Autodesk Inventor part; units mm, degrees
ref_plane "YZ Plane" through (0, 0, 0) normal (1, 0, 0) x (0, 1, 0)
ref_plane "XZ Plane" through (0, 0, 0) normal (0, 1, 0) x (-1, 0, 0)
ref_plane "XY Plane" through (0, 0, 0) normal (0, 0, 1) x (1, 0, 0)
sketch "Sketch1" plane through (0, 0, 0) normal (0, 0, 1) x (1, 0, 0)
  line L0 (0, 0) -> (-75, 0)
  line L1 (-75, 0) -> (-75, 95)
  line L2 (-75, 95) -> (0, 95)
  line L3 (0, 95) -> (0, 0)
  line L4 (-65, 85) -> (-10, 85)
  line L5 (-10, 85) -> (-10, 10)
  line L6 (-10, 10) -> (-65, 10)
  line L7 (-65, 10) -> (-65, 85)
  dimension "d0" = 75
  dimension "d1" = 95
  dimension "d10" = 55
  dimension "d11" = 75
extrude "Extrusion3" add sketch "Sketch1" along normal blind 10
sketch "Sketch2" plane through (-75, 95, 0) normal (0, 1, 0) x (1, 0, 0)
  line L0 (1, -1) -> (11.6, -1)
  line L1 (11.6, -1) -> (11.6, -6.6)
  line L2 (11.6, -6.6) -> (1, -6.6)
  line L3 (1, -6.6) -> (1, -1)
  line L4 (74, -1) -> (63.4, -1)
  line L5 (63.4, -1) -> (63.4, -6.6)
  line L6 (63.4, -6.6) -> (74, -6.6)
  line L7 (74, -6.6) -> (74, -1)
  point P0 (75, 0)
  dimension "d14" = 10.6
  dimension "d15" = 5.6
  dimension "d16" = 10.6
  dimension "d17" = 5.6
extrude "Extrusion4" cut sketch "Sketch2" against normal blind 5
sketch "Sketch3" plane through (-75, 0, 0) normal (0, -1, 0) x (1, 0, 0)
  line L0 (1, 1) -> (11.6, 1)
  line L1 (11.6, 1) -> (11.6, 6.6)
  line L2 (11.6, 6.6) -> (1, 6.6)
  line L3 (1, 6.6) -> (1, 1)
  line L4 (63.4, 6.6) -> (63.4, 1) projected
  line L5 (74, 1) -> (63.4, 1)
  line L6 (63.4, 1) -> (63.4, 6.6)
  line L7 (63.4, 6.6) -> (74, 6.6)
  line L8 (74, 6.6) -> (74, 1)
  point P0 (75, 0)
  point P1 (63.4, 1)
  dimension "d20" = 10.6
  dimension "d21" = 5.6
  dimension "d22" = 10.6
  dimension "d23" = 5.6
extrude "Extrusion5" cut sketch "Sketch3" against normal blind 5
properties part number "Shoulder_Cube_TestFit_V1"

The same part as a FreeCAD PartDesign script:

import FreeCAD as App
import Part
import Sketcher

V = App.Vector
Q = App.Units.Quantity

doc = App.newDocument("Part")
body = doc.addObject("PartDesign::Body", "Body")

# Sketch on XY plane
sketch1 = body.newObject("Sketcher::SketchObject", "Sketch")
sketch1.AttachmentSupport = (doc.getObject("XY_Plane"), [""])
sketch1.MapMode = "FlatFace"
sketch1.addGeometry([
    Part.LineSegment(V(-75, 0, 0), V(0, 0, 0)),  # 0
    Part.LineSegment(V(0, 0, 0), V(0, 95, 0)),  # 1
    Part.LineSegment(V(0, 95, 0), V(-75, 95, 0)),  # 2
    Part.LineSegment(V(-75, 95, 0), V(-75, 0, 0)),  # 3
    Part.LineSegment(V(-65, 10, 0), V(-65, 85, 0)),  # 4
    Part.LineSegment(V(-65, 85, 0), V(-10, 85, 0)),  # 5
    Part.LineSegment(V(-10, 85, 0), V(-10, 10, 0)),  # 6
    Part.LineSegment(V(-10, 10, 0), V(-65, 10, 0)),  # 7
], False)
sketch1.addConstraint([
    Sketcher.Constraint("Coincident", 0, 2, 1, 1),
    Sketcher.Constraint("Coincident", 1, 2, 2, 1),
    Sketcher.Constraint("Coincident", 2, 2, 3, 1),
    Sketcher.Constraint("Coincident", 3, 2, 0, 1),
    Sketcher.Constraint("Coincident", 4, 2, 5, 1),
    Sketcher.Constraint("Coincident", 5, 2, 6, 1),
    Sketcher.Constraint("Coincident", 6, 2, 7, 1),
    Sketcher.Constraint("Coincident", 7, 2, 4, 1),
    Sketcher.Constraint("Horizontal", 0),
    Sketcher.Constraint("Vertical", 1),
    Sketcher.Constraint("Horizontal", 2),
    Sketcher.Constraint("Vertical", 3),
    Sketcher.Constraint("Vertical", 4),
    Sketcher.Constraint("Horizontal", 5),
    Sketcher.Constraint("Vertical", 6),
    Sketcher.Constraint("Horizontal", 7),
    Sketcher.Constraint("Coincident", 0, 2, -1, 1),
    Sketcher.Constraint("Equal", 2, 4),
    Sketcher.Constraint("DistanceX", 0, 1, 0, 2, Q("75 mm")),
    Sketcher.Constraint("DistanceX", 5, 1, 5, 2, Q("55 mm")),
    Sketcher.Constraint("DistanceY", 1, 1, 1, 2, Q("95 mm")),
    Sketcher.Constraint("DistanceX", 4, 2, -1, 1, Q("65 mm")),
    Sketcher.Constraint("DistanceY", -1, 1, 4, 2, Q("85 mm")),
])
pad1 = body.newObject("PartDesign::Pad", "Pad")
pad1.Profile = sketch1
pad1.Length = 10

# Sketch on XZ plane
sketch2 = body.newObject("Sketcher::SketchObject", "Sketch001")
sketch2.AttachmentSupport = (doc.getObject("XZ_Plane"), [""])
sketch2.MapMode = "FlatFace"
sketch2.AttachmentOffset = App.Placement(V(0, 0, -95), App.Rotation())
sketch2.addGeometry([
    Part.LineSegment(V(-63, 1, 0), V(-74, 1, 0)),  # 0
    Part.LineSegment(V(-74, 1, 0), V(-74, 7, 0)),  # 1
    Part.LineSegment(V(-74, 7, 0), V(-63, 7, 0)),  # 2
    Part.LineSegment(V(-63, 7, 0), V(-63, 1, 0)),  # 3
    Part.LineSegment(V(-1, 7, 0), V(-1, 1, 0)),  # 4
    Part.LineSegment(V(-1, 1, 0), V(-12, 1, 0)),  # 5
    Part.LineSegment(V(-12, 1, 0), V(-12, 7, 0)),  # 6
    Part.LineSegment(V(-12, 7, 0), V(-1, 7, 0)),  # 7
], False)
sketch2.addConstraint([
    Sketcher.Constraint("Coincident", 0, 2, 1, 1),
    Sketcher.Constraint("Coincident", 1, 2, 2, 1),
    Sketcher.Constraint("Coincident", 2, 2, 3, 1),
    Sketcher.Constraint("Coincident", 3, 2, 0, 1),
    Sketcher.Constraint("Coincident", 4, 2, 5, 1),
    Sketcher.Constraint("Coincident", 5, 2, 6, 1),
    Sketcher.Constraint("Coincident", 6, 2, 7, 1),
    Sketcher.Constraint("Coincident", 7, 2, 4, 1),
    Sketcher.Constraint("Horizontal", 0),
    Sketcher.Constraint("Vertical", 1),
    Sketcher.Constraint("Horizontal", 2),
    Sketcher.Constraint("Vertical", 3),
    Sketcher.Constraint("Vertical", 4),
    Sketcher.Constraint("Horizontal", 5),
    Sketcher.Constraint("Vertical", 6),
    Sketcher.Constraint("Horizontal", 7),
    Sketcher.Constraint("Horizontal", 3, 2, 4, 2),
    Sketcher.Constraint("Horizontal", 2, 2, 6, 2),
    Sketcher.Constraint("Equal", 2, 5),
    Sketcher.Constraint("DistanceX", 0, 2, 0, 1, Q("10.6 mm")),
    Sketcher.Constraint("DistanceY", 1, 1, 1, 2, Q("5.6 mm")),
    Sketcher.Constraint("DistanceX", 0, 2, -1, 1, Q("74 mm")),
    Sketcher.Constraint("DistanceY", -1, 1, 0, 2, Q("1 mm")),
    Sketcher.Constraint("DistanceX", 4, 2, -1, 1, Q("1 mm")),
])
pocket1 = body.newObject("PartDesign::Pocket", "Pocket")
pocket1.Profile = sketch2
pocket1.Length = 5
pocket1.Reversed = True

# Sketch on XZ plane
sketch3 = body.newObject("Sketcher::SketchObject", "Sketch002")
sketch3.AttachmentSupport = (doc.getObject("XZ_Plane"), [""])
sketch3.MapMode = "FlatFace"
sketch3.addGeometry([
    Part.LineSegment(V(-74, 7, 0), V(-74, 1, 0)),  # 0
    Part.LineSegment(V(-74, 1, 0), V(-63, 1, 0)),  # 1
    Part.LineSegment(V(-63, 1, 0), V(-63, 7, 0)),  # 2
    Part.LineSegment(V(-63, 7, 0), V(-74, 7, 0)),  # 3
    Part.LineSegment(V(-1, 7, 0), V(-12, 7, 0)),  # 4
    Part.LineSegment(V(-12, 7, 0), V(-12, 1, 0)),  # 5
    Part.LineSegment(V(-12, 1, 0), V(-1, 1, 0)),  # 6
    Part.LineSegment(V(-1, 1, 0), V(-1, 7, 0)),  # 7
], False)
sketch3.addConstraint([
    Sketcher.Constraint("Coincident", 0, 2, 1, 1),
    Sketcher.Constraint("Coincident", 1, 2, 2, 1),
    Sketcher.Constraint("Coincident", 2, 2, 3, 1),
    Sketcher.Constraint("Coincident", 3, 2, 0, 1),
    Sketcher.Constraint("Coincident", 4, 2, 5, 1),
    Sketcher.Constraint("Coincident", 5, 2, 6, 1),
    Sketcher.Constraint("Coincident", 6, 2, 7, 1),
    Sketcher.Constraint("Coincident", 7, 2, 4, 1),
    Sketcher.Constraint("Vertical", 0),
    Sketcher.Constraint("Horizontal", 1),
    Sketcher.Constraint("Vertical", 2),
    Sketcher.Constraint("Horizontal", 3),
    Sketcher.Constraint("Horizontal", 4),
    Sketcher.Constraint("Vertical", 5),
    Sketcher.Constraint("Horizontal", 6),
    Sketcher.Constraint("Vertical", 7),
    Sketcher.Constraint("Horizontal", 3, 2, 4, 2),
    Sketcher.Constraint("Horizontal", 1, 2, 5, 2),
    Sketcher.Constraint("Equal", 3, 4),
    Sketcher.Constraint("DistanceX", 1, 1, 1, 2, Q("10.6 mm")),
    Sketcher.Constraint("DistanceY", 0, 2, 0, 1, Q("5.6 mm")),
    Sketcher.Constraint("DistanceX", 0, 2, -1, 1, Q("74 mm")),
    Sketcher.Constraint("DistanceY", -1, 1, 0, 2, Q("1 mm")),
    Sketcher.Constraint("DistanceX", 6, 2, -1, 1, Q("1 mm")),
])
pocket2 = body.newObject("PartDesign::Pocket", "Pocket001")
pocket2.Profile = sketch3
pocket2.Length = 5

doc.recompute()
